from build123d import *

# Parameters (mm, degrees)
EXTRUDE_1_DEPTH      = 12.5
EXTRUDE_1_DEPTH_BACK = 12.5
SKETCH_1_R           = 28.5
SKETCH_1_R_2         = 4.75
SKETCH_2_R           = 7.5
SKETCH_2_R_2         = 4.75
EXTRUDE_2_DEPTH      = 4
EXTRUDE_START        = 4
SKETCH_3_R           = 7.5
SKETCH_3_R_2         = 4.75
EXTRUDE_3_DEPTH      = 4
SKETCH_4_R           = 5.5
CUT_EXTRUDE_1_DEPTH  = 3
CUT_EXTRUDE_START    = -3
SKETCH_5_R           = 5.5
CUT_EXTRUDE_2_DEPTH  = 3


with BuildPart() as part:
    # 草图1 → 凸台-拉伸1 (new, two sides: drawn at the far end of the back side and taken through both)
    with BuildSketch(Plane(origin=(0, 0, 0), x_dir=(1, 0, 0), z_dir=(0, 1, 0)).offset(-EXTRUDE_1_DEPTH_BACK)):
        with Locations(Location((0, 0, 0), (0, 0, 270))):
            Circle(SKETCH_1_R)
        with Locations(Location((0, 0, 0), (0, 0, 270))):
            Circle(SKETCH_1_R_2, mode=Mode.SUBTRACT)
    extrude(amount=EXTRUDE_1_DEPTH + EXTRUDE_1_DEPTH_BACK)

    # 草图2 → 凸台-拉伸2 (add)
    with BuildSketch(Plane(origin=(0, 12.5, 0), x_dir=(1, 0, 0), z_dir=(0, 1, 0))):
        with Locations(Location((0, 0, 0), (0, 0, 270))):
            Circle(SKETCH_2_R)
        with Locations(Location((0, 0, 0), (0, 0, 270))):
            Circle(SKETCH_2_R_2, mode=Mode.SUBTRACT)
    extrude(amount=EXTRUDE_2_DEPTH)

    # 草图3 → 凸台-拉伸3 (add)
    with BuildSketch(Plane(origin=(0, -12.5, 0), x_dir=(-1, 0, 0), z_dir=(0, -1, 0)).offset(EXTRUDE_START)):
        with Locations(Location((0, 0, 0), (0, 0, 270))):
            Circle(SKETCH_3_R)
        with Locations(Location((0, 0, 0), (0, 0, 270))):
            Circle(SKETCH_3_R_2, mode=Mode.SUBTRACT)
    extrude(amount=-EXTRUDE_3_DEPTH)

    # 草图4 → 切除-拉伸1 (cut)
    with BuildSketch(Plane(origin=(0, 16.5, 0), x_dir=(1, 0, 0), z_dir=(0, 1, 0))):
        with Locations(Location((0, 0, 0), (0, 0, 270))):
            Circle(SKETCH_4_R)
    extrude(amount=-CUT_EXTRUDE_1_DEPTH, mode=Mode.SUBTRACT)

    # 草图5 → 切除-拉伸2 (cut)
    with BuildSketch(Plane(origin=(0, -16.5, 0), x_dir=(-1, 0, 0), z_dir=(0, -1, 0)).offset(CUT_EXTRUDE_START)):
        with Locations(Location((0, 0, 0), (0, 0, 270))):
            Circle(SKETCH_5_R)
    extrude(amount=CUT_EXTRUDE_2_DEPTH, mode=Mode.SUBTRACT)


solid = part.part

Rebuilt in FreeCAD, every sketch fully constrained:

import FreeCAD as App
import Part
import Sketcher

V = App.Vector
Q = App.Units.Quantity

doc = App.newDocument("Part")
params = doc.addObject("Spreadsheet::Sheet", "Params")
for row, (alias, value) in enumerate([
    ("sketch1_diameter", "57 mm"),
    ("sketch1_diameter2", "9.5 mm"),
    ("pad1_length", "12.5 mm"),
    ("pad1_length2", "12.5 mm"),
    ("sketch2_diameter", "15 mm"),
    ("sketch2_diameter2", "9.5 mm"),
    ("pad2_length", "4 mm"),
    ("sketch3_diameter", "15 mm"),
    ("sketch3_diameter2", "9.5 mm"),
    ("pad3_length", "4 mm"),
    ("sketch4_diameter", "11 mm"),
    ("pocket1_length", "3 mm"),
    ("sketch5_diameter", "11 mm"),
    ("pocket2_length", "3 mm"),
], start=1):
    params.set(f"A{row}", alias)
    params.set(f"B{row}", "=" + value)
    params.setAlias(f"B{row}", alias)

body = doc.addObject("PartDesign::Body", "Body")

sketch1 = doc.addObject("Sketcher::SketchObject", "Sketch")
body.addObject(sketch1)
sketch1.AttachmentSupport = (doc.XZ_Plane, [""])
sketch1.MapMode = "FlatFace"
sketch1.addGeometry([
    Part.Circle(V(0, 0, 0), V(0, 0, 1), 28.5),
    Part.Circle(V(0, 0, 0), V(0, 0, 1), 4.8),
], False)
sketch1.addConstraint([
    Sketcher.Constraint("Coincident", 0, 3, -1, 1),
    Sketcher.Constraint("Coincident", 1, 3, -1, 1),
    Sketcher.Constraint("Diameter", 0, Q("57 mm")),
    Sketcher.Constraint("Diameter", 1, Q("9.5 mm")),
])
sketch1.setExpression("Constraints[2]", "Params.sketch1_diameter")
sketch1.setExpression("Constraints[3]", "Params.sketch1_diameter2")
pad1 = doc.addObject("PartDesign::Pad", "Pad")
body.addObject(pad1)
pad1.Profile = sketch1
pad1.Type = "TwoLengths"
pad1.setExpression("Length", "Params.pad1_length")
pad1.setExpression("Length2", "Params.pad1_length2")
pad1.Reversed = True

sketch2 = doc.addObject("Sketcher::SketchObject", "Sketch001")
body.addObject(sketch2)
sketch2.AttachmentSupport = (doc.XZ_Plane, [""])
sketch2.MapMode = "FlatFace"
sketch2.AttachmentOffset = App.Placement(V(0, 0, -12.5), App.Rotation())
sketch2.addGeometry([
    Part.Circle(V(0, 0, 0), V(0, 0, 1), 7.5),
    Part.Circle(V(0, 0, 0), V(0, 0, 1), 4.8),
], False)
sketch2.addConstraint([
    Sketcher.Constraint("Coincident", 0, 3, -1, 1),
    Sketcher.Constraint("Coincident", 1, 3, -1, 1),
    Sketcher.Constraint("Diameter", 0, Q("15 mm")),
    Sketcher.Constraint("Diameter", 1, Q("9.5 mm")),
])
sketch2.setExpression("Constraints[2]", "Params.sketch2_diameter")
sketch2.setExpression("Constraints[3]", "Params.sketch2_diameter2")
pad2 = doc.addObject("PartDesign::Pad", "Pad001")
body.addObject(pad2)
pad2.Profile = sketch2
pad2.setExpression("Length", "Params.pad2_length")
pad2.Reversed = True

sketch3 = doc.addObject("Sketcher::SketchObject", "Sketch002")
body.addObject(sketch3)
sketch3.AttachmentSupport = (doc.XZ_Plane, [""])
sketch3.MapMode = "FlatFace"
sketch3.AttachmentOffset = App.Placement(V(0, 0, 16.5), App.Rotation())
sketch3.addGeometry([
    Part.Circle(V(0, 0, 0), V(0, 0, 1), 7.5),
    Part.Circle(V(0, 0, 0), V(0, 0, 1), 4.8),
], False)
sketch3.addConstraint([
    Sketcher.Constraint("Coincident", 0, 3, -1, 1),
    Sketcher.Constraint("Coincident", 1, 3, -1, 1),
    Sketcher.Constraint("Diameter", 0, Q("15 mm")),
    Sketcher.Constraint("Diameter", 1, Q("9.5 mm")),
])
sketch3.setExpression("Constraints[2]", "Params.sketch3_diameter")
sketch3.setExpression("Constraints[3]", "Params.sketch3_diameter2")
pad3 = doc.addObject("PartDesign::Pad", "Pad002")
body.addObject(pad3)
pad3.Profile = sketch3
pad3.setExpression("Length", "Params.pad3_length")
pad3.Reversed = True

sketch4 = doc.addObject("Sketcher::SketchObject", "Sketch003")
body.addObject(sketch4)
sketch4.AttachmentSupport = (doc.XZ_Plane, [""])
sketch4.MapMode = "FlatFace"
sketch4.AttachmentOffset = App.Placement(V(0, 0, -16.5), App.Rotation())
sketch4.addGeometry(Part.Circle(V(0, 0, 0), V(0, 0, 1), 6), False)
sketch4.addConstraint([
    Sketcher.Constraint("Coincident", 0, 3, -1, 1),
    Sketcher.Constraint("Diameter", 0, Q("11 mm")),
])
sketch4.setExpression("Constraints[1]", "Params.sketch4_diameter")
pocket1 = doc.addObject("PartDesign::Pocket", "Pocket")
body.addObject(pocket1)
pocket1.Profile = sketch4
pocket1.setExpression("Length", "Params.pocket1_length")
pocket1.Reversed = True

sketch5 = doc.addObject("Sketcher::SketchObject", "Sketch004")
body.addObject(sketch5)
sketch5.AttachmentSupport = (doc.XZ_Plane, [""])
sketch5.MapMode = "FlatFace"
sketch5.AttachmentOffset = App.Placement(V(0, 0, 13.5), App.Rotation())
sketch5.addGeometry(Part.Circle(V(0, 0, 0), V(0, 0, 1), 6), False)
sketch5.addConstraint([
    Sketcher.Constraint("Coincident", 0, 3, -1, 1),
    Sketcher.Constraint("Diameter", 0, Q("11 mm")),
])
sketch5.setExpression("Constraints[1]", "Params.sketch5_diameter")
pocket2 = doc.addObject("PartDesign::Pocket", "Pocket001")
body.addObject(pocket2)
pocket2.Profile = sketch5
pocket2.setExpression("Length", "Params.pocket2_length")
pocket2.Reversed = True

doc.recompute()
